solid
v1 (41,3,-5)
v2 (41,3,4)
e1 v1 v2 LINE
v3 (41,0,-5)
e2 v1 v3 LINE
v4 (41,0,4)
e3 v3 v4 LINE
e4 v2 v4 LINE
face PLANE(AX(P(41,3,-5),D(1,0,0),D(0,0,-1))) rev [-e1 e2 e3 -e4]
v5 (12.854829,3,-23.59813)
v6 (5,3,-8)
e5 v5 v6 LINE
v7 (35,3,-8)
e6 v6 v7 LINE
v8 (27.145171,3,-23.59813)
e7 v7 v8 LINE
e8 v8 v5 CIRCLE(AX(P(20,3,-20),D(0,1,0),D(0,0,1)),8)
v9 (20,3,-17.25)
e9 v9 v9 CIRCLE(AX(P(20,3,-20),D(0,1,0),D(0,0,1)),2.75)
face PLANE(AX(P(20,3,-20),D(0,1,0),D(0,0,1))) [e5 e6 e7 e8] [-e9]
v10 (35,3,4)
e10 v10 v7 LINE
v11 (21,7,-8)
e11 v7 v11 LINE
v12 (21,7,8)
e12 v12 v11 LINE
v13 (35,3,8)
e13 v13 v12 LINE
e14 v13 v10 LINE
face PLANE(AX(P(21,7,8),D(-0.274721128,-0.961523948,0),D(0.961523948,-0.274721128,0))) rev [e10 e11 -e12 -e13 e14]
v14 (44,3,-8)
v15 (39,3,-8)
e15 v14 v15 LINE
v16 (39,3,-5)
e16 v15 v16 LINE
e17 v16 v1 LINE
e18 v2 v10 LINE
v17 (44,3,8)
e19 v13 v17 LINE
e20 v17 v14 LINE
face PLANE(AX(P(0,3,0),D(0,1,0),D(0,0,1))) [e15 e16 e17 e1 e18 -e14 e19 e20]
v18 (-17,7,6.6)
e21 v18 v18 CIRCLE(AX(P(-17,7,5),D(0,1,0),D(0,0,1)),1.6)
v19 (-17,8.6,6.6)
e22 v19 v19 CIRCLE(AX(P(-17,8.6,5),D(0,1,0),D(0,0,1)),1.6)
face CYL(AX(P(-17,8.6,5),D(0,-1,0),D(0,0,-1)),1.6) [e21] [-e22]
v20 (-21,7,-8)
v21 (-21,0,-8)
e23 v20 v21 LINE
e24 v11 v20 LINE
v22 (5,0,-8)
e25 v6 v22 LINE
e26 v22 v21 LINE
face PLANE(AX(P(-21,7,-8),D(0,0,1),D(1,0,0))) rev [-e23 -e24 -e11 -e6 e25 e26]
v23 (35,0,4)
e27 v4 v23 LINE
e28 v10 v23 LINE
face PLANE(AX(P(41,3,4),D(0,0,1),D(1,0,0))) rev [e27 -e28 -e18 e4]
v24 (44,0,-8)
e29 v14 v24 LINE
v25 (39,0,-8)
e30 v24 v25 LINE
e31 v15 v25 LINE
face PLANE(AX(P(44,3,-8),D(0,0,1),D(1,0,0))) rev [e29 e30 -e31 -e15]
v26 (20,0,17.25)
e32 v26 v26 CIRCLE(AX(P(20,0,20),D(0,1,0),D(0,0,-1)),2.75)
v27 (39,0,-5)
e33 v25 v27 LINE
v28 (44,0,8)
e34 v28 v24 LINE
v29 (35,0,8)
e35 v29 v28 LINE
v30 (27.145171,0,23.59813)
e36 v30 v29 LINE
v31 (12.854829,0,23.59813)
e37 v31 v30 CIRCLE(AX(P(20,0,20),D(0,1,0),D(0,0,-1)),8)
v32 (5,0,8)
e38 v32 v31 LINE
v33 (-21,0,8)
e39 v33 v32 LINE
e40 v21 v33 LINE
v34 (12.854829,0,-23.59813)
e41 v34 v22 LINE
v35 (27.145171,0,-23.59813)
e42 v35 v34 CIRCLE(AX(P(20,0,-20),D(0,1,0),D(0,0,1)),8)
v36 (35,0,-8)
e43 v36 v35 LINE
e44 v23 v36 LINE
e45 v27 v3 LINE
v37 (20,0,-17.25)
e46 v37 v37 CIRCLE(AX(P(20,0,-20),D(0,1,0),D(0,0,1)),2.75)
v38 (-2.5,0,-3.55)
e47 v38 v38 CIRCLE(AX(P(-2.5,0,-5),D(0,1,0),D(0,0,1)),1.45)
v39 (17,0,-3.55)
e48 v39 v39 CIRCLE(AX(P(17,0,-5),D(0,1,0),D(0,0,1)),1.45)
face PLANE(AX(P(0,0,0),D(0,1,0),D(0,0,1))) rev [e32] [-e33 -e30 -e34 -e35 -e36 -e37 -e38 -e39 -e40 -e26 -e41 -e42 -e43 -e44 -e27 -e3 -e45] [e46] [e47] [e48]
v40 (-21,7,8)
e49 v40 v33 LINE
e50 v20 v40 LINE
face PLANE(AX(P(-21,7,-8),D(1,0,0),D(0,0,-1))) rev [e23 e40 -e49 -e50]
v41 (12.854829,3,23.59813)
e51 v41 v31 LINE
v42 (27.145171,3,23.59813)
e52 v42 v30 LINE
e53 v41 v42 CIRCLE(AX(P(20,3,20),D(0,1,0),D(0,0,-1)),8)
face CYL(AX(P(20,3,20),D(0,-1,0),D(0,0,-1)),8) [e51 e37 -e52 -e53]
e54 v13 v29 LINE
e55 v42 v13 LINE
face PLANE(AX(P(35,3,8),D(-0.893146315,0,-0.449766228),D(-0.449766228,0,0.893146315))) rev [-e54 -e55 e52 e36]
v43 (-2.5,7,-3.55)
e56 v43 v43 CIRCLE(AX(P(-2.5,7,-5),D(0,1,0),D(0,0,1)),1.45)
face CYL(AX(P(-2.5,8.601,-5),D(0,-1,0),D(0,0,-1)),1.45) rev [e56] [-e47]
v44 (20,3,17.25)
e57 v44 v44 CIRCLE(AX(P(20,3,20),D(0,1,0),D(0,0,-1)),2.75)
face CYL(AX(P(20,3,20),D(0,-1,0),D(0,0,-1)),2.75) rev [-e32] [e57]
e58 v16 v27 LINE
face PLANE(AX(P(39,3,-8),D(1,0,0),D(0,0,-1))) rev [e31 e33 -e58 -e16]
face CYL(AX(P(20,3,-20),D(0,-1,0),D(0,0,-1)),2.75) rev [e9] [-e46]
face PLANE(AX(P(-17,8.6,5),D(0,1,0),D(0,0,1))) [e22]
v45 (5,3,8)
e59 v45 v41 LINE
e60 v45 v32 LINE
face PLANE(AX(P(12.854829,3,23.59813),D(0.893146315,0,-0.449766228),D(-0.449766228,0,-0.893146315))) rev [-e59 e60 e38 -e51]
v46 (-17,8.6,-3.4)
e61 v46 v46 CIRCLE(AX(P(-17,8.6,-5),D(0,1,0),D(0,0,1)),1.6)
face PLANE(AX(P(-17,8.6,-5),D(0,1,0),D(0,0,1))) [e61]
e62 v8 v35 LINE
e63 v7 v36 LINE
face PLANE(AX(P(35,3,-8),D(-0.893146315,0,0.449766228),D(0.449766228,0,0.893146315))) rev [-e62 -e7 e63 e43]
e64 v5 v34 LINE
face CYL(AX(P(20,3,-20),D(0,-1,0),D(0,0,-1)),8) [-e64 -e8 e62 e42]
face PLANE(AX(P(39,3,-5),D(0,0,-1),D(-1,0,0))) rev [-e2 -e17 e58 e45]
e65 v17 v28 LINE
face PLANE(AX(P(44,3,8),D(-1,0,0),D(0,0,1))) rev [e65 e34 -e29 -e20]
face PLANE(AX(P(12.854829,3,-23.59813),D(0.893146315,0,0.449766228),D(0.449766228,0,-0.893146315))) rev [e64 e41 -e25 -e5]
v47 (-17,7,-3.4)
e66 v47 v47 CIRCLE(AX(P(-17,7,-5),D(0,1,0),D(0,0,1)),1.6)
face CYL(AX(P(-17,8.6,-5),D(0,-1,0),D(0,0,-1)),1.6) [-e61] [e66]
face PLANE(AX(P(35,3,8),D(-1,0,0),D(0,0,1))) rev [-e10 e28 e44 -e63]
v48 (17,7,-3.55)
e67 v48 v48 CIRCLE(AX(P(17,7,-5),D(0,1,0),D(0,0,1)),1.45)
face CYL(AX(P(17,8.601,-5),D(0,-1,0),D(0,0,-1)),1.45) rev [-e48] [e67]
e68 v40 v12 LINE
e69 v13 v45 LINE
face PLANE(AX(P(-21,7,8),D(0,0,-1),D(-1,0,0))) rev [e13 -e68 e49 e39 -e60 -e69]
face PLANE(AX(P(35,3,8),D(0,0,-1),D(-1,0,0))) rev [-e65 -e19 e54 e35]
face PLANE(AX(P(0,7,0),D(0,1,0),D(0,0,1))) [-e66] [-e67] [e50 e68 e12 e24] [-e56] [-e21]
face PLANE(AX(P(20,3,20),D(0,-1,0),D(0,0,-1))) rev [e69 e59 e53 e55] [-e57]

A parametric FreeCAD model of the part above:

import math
import FreeCAD as App
import Part
import Sketcher
Q = App.Units.Quantity


def add_polygon(sketch, points):
    """Adds a closed chain of lines whose ends are joined by coincident constraints."""
    first, n = sketch.GeometryCount, len(points)
    for a, b in zip(points, points[1:] + points[:1]):
        sketch.addGeometry(Part.LineSegment(App.Vector(*a, 0), App.Vector(*b, 0)), False)
    for i in range(n):
        sketch.addConstraint(Sketcher.Constraint("Coincident", first + i, 2, first + (i + 1) % n, 1))

doc = App.newDocument("Part")
body = doc.addObject("PartDesign::Body", "Body")

sketch1 = body.newObject("Sketcher::SketchObject", "Sketch")
sketch1.AttachmentSupport = (doc.getObject("XZ_Plane"), [""])
sketch1.MapMode = "FlatFace"
add_polygon(sketch1, [(-21, -8), (-21, 8), (21, 8), (21, -8)])
sketch1.addConstraint(Sketcher.Constraint("Vertical", 0))
sketch1.addConstraint(Sketcher.Constraint("Horizontal", 1))
sketch1.addConstraint(Sketcher.Constraint("Vertical", 2))
sketch1.addConstraint(Sketcher.Constraint("Horizontal", 3))
sketch1.addConstraint(Sketcher.Constraint("Symmetric", 0, 2, 2, 2, -1, 1))
sketch1.addConstraint(Sketcher.Constraint("DistanceX", 1, 1, 1, 2, Q("42 mm")))
sketch1.addConstraint(Sketcher.Constraint("DistanceY", 0, 1, 0, 2, Q("16 mm")))
pad1 = body.newObject("PartDesign::Pad", "Pad")
pad1.Profile = sketch1
pad1.Length = 7
pad1.Reversed = True

sketch2 = body.newObject("Sketcher::SketchObject", "Sketch001")
sketch2.AttachmentSupport = (doc.getObject("XZ_Plane"), [""])
sketch2.MapMode = "FlatFace"
sketch2.AttachmentOffset = App.Placement(App.Vector(0, 0, -7), App.Rotation())
sketch2.addGeometry(Part.Circle(App.Vector(-17, -5, 0), App.Vector(0, 0, 1), 1.6), False)
sketch2.addGeometry(Part.Circle(App.Vector(-17, 5, 0), App.Vector(0, 0, 1), 1.6), False)
sketch2.addConstraint(Sketcher.Constraint("Equal", 0, 1))
sketch2.addConstraint(Sketcher.Constraint("Symmetric", 0, 3, 1, 3, -1))
sketch2.addConstraint(Sketcher.Constraint("Diameter", 0, Q("3.2 mm")))
sketch2.addConstraint(Sketcher.Constraint("DistanceX", 0, 3, -1, 1, Q("17 mm")))
sketch2.addConstraint(Sketcher.Constraint("DistanceY", 0, 3, -1, 1, Q("5 mm")))
pad2 = body.newObject("PartDesign::Pad", "Pad001")
pad2.Profile = sketch2
pad2.Length = 1.6
pad2.Reversed = True

sketch3 = body.newObject("Sketcher::SketchObject", "Sketch002")
sketch3.AttachmentSupport = (doc.getObject("XZ_Plane"), [""])
sketch3.MapMode = "FlatFace"
sketch3.addGeometry(Part.Circle(App.Vector(-2.5, -5, 0), App.Vector(0, 0, 1), 1.4), False)
sketch3.addConstraint(Sketcher.Constraint("Diameter", 0, Q("2.9 mm")))
sketch3.addConstraint(Sketcher.Constraint("DistanceY", 0, 3, -1, 1, Q("5 mm")))
sketch3.addConstraint(Sketcher.Constraint("DistanceX", 0, 3, -1, 1, Q("2.5 mm")))
pocket1 = body.newObject("PartDesign::Pocket", "Pocket")
pocket1.Profile = sketch3
pocket1.Type = "UpToFirst"

sketch4 = body.newObject("Sketcher::SketchObject", "Sketch003")
sketch4.AttachmentSupport = (doc.getObject("XZ_Plane"), [""])
sketch4.MapMode = "FlatFace"
sketch4.addGeometry(Part.Circle(App.Vector(17, -5, 0), App.Vector(0, 0, 1), 1.4), False)
sketch4.addConstraint(Sketcher.Constraint("Diameter", 0, Q("2.9 mm")))
sketch4.addConstraint(Sketcher.Constraint("DistanceX", -1, 1, 0, 3, Q("17 mm")))
sketch4.addConstraint(Sketcher.Constraint("DistanceY", 0, 3, -1, 1, Q("5 mm")))
pocket2 = body.newObject("PartDesign::Pocket", "Pocket001")
pocket2.Profile = sketch4
pocket2.Type = "UpToFirst"

sketch5 = body.newObject("Sketcher::SketchObject", "Sketch004")
sketch5.AttachmentSupport = (doc.getObject("XZ_Plane"), [""])
sketch5.MapMode = "FlatFace"
sketch5.addGeometry(Part.LineSegment(App.Vector(12.9, -23.6, 0), App.Vector(5, -8, 0)), False)
sketch5.addGeometry(Part.LineSegment(App.Vector(5, -8, 0), App.Vector(35, -8, 0)), False)
sketch5.addGeometry(Part.LineSegment(App.Vector(35, -8, 0), App.Vector(27.1, -23.6, 0)), False)
sketch5.addGeometry(Part.ArcOfCircle(Part.Circle(App.Vector(20, -20, 0), App.Vector(0, 0, 1), 8), math.radians(-153), math.radians(-27)), False)
sketch5.addGeometry(Part.Circle(App.Vector(20, -20, 0), App.Vector(0, 0, 1), 2.8), False)
sketch5.addGeometry(Part.LineSegment(App.Vector(27.1, 23.6, 0), App.Vector(35, 8, 0)), False)
sketch5.addGeometry(Part.LineSegment(App.Vector(35, 8, 0), App.Vector(5, 8, 0)), False)
sketch5.addGeometry(Part.LineSegment(App.Vector(5, 8, 0), App.Vector(12.9, 23.6, 0)), False)
sketch5.addGeometry(Part.ArcOfCircle(Part.Circle(App.Vector(20, 20, 0), App.Vector(0, 0, 1), 8), math.radians(27), math.radians(153)), False)
sketch5.addGeometry(Part.Circle(App.Vector(20, 20, 0), App.Vector(0, 0, 1), 2.8), False)
sketch5.addConstraint(Sketcher.Constraint("Coincident", 0, 2, 1, 1))
sketch5.addConstraint(Sketcher.Constraint("Coincident", 1, 2, 2, 1))
sketch5.addConstraint(Sketcher.Constraint("Tangent", 2, 2, 3, 2))
sketch5.addConstraint(Sketcher.Constraint("Tangent", 3, 1, 0, 1))
sketch5.addConstraint(Sketcher.Constraint("Coincident", 5, 2, 6, 1))
sketch5.addConstraint(Sketcher.Constraint("Coincident", 6, 2, 7, 1))
sketch5.addConstraint(Sketcher.Constraint("Tangent", 7, 2, 8, 2))
sketch5.addConstraint(Sketcher.Constraint("Tangent", 8, 1, 5, 1))
sketch5.addConstraint(Sketcher.Constraint("Horizontal", 1))
sketch5.addConstraint(Sketcher.Constraint("Horizontal", 6))
sketch5.addConstraint(Sketcher.Constraint("Coincident", 4, 3, 3, 3))
sketch5.addConstraint(Sketcher.Constraint("Coincident", 9, 3, 8, 3))
sketch5.addConstraint(Sketcher.Constraint("Equal", 3, 8))
sketch5.addConstraint(Sketcher.Constraint("Equal", 4, 9))
sketch5.addConstraint(Sketcher.Constraint("Symmetric", 3, 3, 8, 3, -1))
sketch5.addConstraint(Sketcher.Constraint("Symmetric", 1, 2, 5, 2, -1))
sketch5.addConstraint(Sketcher.Constraint("Parallel", 0, 5))
sketch5.addConstraint(Sketcher.Constraint("Parallel", 2, 7))
sketch5.addConstraint(Sketcher.Constraint("Radius", 3, Q("8 mm")))
sketch5.addConstraint(Sketcher.Constraint("Diameter", 4, Q("5.5 mm")))
sketch5.addConstraint(Sketcher.Constraint("DistanceX", 1, 1, 1, 2, Q("30 mm")))
sketch5.addConstraint(Sketcher.Constraint("DistanceX", -1, 1, 3, 3, Q("20 mm")))
sketch5.addConstraint(Sketcher.Constraint("DistanceY", 3, 3, -1, 1, Q("20 mm")))
sketch5.addConstraint(Sketcher.Constraint("DistanceY", 0, 2, -1, 1, Q("8 mm")))
pad3 = body.newObject("PartDesign::Pad", "Pad002")
pad3.Profile = sketch5
pad3.Length = 3
pad3.Reversed = True

sketch6 = body.newObject("Sketcher::SketchObject", "Sketch005")
sketch6.AttachmentSupport = (doc.getObject("XY_Plane"), [""])
sketch6.MapMode = "FlatFace"
add_polygon(sketch6, [(35, 3), (21, 7), (21, 0), (35, 0)])
sketch6.addConstraint(Sketcher.Constraint("Vertical", 1))
sketch6.addConstraint(Sketcher.Constraint("Horizontal", 2))
sketch6.addConstraint(Sketcher.Constraint("Vertical", 3))
sketch6.addConstraint(Sketcher.Constraint("PointOnObject", 1, 2, -1))
sketch6.addConstraint(Sketcher.Constraint("DistanceX", 2, 1, 2, 2, Q("14 mm")))
sketch6.addConstraint(Sketcher.Constraint("DistanceY", 1, 2, 1, 1, Q("7 mm")))
sketch6.addConstraint(Sketcher.Constraint("DistanceY", 3, 1, 3, 2, Q("3 mm")))
sketch6.addConstraint(Sketcher.Constraint("DistanceX", -1, 1, 0, 2, Q("21 mm")))
pad4 = body.newObject("PartDesign::Pad", "Pad003")
pad4.Profile = sketch6
pad4.Length = 16
pad4.Midplane = True

sketch7 = body.newObject("Sketcher::SketchObject", "Sketch006")
sketch7.AttachmentSupport = (doc.getObject("XZ_Plane"), [""])
sketch7.MapMode = "FlatFace"
add_polygon(sketch7, [(35, 8), (44, 8), (44, -8), (39, -8), (39, -5), (41, -5), (41, 4), (35, 4)])
sketch7.addConstraint(Sketcher.Constraint("Horizontal", 0))
sketch7.addConstraint(Sketcher.Constraint("Vertical", 1))
sketch7.addConstraint(Sketcher.Constraint("Horizontal", 2))
sketch7.addConstraint(Sketcher.Constraint("Vertical", 3))
sketch7.addConstraint(Sketcher.Constraint("Horizontal", 4))
sketch7.addConstraint(Sketcher.Constraint("Vertical", 5))
sketch7.addConstraint(Sketcher.Constraint("Horizontal", 6))
sketch7.addConstraint(Sketcher.Constraint("Vertical", 7))
sketch7.addConstraint(Sketcher.Constraint("Equal", 0, 5))
sketch7.addConstraint(Sketcher.Constraint("DistanceX", 0, 1, 0, 2, Q("9 mm")))
sketch7.addConstraint(Sketcher.Constraint("DistanceX", 2, 2, 2, 1, Q("5 mm")))
sketch7.addConstraint(Sketcher.Constraint("DistanceX", 4, 1, 4, 2, Q("2 mm")))
sketch7.addConstraint(Sketcher.Constraint("DistanceY", 1, 2, 1, 1, Q("16 mm")))
sketch7.addConstraint(Sketcher.Constraint("DistanceY", 3, 1, 3, 2, Q("3 mm")))
sketch7.addConstraint(Sketcher.Constraint("DistanceX", -1, 1, 0, 2, Q("44 mm")))
sketch7.addConstraint(Sketcher.Constraint("DistanceY", -1, 1, 0, 2, Q("8 mm")))
pad5 = body.newObject("PartDesign::Pad", "Pad004")
pad5.Profile = sketch7
pad5.Length = 3
pad5.Reversed = True

doc.recompute()
